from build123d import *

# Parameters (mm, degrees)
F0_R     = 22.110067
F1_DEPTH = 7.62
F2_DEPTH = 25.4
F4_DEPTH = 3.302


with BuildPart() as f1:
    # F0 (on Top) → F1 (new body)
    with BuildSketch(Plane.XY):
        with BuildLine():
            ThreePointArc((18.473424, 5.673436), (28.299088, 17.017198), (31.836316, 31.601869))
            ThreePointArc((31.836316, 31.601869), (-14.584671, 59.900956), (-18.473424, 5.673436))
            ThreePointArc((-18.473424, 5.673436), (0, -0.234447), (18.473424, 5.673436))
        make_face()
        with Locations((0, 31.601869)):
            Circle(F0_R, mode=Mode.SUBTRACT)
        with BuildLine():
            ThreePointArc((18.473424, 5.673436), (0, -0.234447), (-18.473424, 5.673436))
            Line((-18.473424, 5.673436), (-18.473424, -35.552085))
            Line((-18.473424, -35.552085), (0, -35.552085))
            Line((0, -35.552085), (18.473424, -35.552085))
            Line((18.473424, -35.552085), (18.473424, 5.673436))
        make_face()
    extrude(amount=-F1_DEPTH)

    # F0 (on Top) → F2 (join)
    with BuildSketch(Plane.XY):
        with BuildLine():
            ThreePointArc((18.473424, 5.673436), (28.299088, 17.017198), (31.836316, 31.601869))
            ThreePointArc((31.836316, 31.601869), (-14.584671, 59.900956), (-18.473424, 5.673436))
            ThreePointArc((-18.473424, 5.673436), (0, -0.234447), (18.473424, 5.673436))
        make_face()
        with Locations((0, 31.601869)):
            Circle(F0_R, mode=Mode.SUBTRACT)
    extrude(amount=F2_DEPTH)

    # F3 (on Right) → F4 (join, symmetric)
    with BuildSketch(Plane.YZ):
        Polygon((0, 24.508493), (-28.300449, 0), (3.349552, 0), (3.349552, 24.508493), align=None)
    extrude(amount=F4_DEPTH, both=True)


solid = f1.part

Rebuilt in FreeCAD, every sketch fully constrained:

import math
import FreeCAD as App
import Part
import Sketcher
Q = App.Units.Quantity

doc = App.newDocument("Part")
body = doc.addObject("PartDesign::Body", "Body")

# Sketch on XY plane
sketch1 = body.newObject("Sketcher::SketchObject", "Sketch")
sketch1.AttachmentSupport = (doc.getObject("XY_Plane"), [""])
sketch1.MapMode = "FlatFace"
sketch1.addGeometry([
    Part.ArcOfCircle(Part.Circle(App.Vector(0, 32, 0), App.Vector(0, 0, 1), 32), math.radians(-55), math.radians(0)),  # 0
    Part.ArcOfCircle(Part.Circle(App.Vector(0, 32, 0), App.Vector(0, 0, 1), 32), math.radians(0), math.radians(235)),  # 1
    Part.LineSegment(App.Vector(-18, 6, 0), App.Vector(-18, -36, 0)),  # 2
    Part.LineSegment(App.Vector(-18, -36, 0), App.Vector(18, -36, 0)),  # 3
    Part.LineSegment(App.Vector(18, -36, 0), App.Vector(18, 6, 0)),  # 4
    Part.Circle(App.Vector(0, 32, 0), App.Vector(0, 0, 1), 22),  # 5
], False)
sketch1.addConstraint([
    Sketcher.Constraint("Tangent", 0, 2, 1, 1),
    Sketcher.Constraint("Coincident", 1, 2, 2, 1),
    Sketcher.Constraint("Coincident", 2, 2, 3, 1),
    Sketcher.Constraint("Coincident", 3, 2, 4, 1),
    Sketcher.Constraint("Coincident", 4, 2, 0, 1),
    Sketcher.Constraint("Vertical", 2),
    Sketcher.Constraint("Horizontal", 3),
    Sketcher.Constraint("Vertical", 4),
    Sketcher.Constraint("Coincident", 5, 3, 0, 3),
    Sketcher.Constraint("Symmetric", 1, 2, 4, 2, -2),
    Sketcher.Constraint("PointOnObject", 0, 3, -2),
    Sketcher.Constraint("Horizontal", 5, 3, 0, 2),
    Sketcher.Constraint("Diameter", 5, Q("44.220134 mm")),
    Sketcher.Constraint("DistanceX", 1, 2, -1, 1, Q("0.7273002 in")),
    Sketcher.Constraint("Radius", 0, Q("31.836318 mm")),
    Sketcher.Constraint("DistanceY", 2, 2, 2, 1, Q("41.225521 mm")),
    Sketcher.Constraint("DistanceY", -1, 1, 0, 3, Q("31.60187 mm")),
])
pad1 = body.newObject("PartDesign::Pad", "Pad")
pad1.Profile = sketch1
pad1.Length = Q("0.3 in")
pad1.Reversed = True

# Sketch on XY plane
sketch2 = body.newObject("Sketcher::SketchObject", "Sketch001")
sketch2.AttachmentSupport = (doc.getObject("XY_Plane"), [""])
sketch2.MapMode = "FlatFace"
sketch2.addGeometry([
    Part.ArcOfCircle(Part.Circle(App.Vector(0, 32, 0), App.Vector(0, 0, 1), 32), math.radians(-55), math.radians(0)),
    Part.ArcOfCircle(Part.Circle(App.Vector(0, 32, 0), App.Vector(0, 0, 1), 32), math.radians(0), math.radians(235)),
    Part.ArcOfCircle(Part.Circle(App.Vector(0, 32, 0), App.Vector(0, 0, 1), 32), math.radians(-125), math.radians(-55)),
    Part.Circle(App.Vector(0, 32, 0), App.Vector(0, 0, 1), 22),
], False)
sketch2.addConstraint([
    Sketcher.Constraint("Tangent", 0, 2, 1, 1),
    Sketcher.Constraint("Tangent", 1, 2, 2, 1),
    Sketcher.Constraint("Tangent", 2, 2, 0, 1),
    Sketcher.Constraint("Coincident", 3, 3, 0, 3),
    Sketcher.Constraint("Symmetric", 1, 2, 2, 2, -2),
    Sketcher.Constraint("Horizontal", 3, 3, 0, 2),
    Sketcher.Constraint("Diameter", 3, Q("44.220134 mm")),
    Sketcher.Constraint("DistanceX", 1, 2, -1, 1, Q("0.7273002 in")),
    Sketcher.Constraint("Radius", 0, Q("31.836318 mm")),
    Sketcher.Constraint("DistanceY", -1, 1, 0, 3, Q("31.60187 mm")),
])
pad2 = body.newObject("PartDesign::Pad", "Pad001")
pad2.Profile = sketch2
pad2.Length = Q("1 in")

# Sketch on YZ plane
sketch3 = body.newObject("Sketcher::SketchObject", "Sketch002")
sketch3.AttachmentSupport = (doc.getObject("YZ_Plane"), [""])
sketch3.MapMode = "FlatFace"
sketch3.addGeometry([
    Part.LineSegment(App.Vector(0, 24.5, 0), App.Vector(-28.3, 0, 0)),
    Part.LineSegment(App.Vector(-28.3, 0, 0), App.Vector(3.3, 0, 0)),
    Part.LineSegment(App.Vector(3.3, 0, 0), App.Vector(3.3, 24.5, 0)),
    Part.LineSegment(App.Vector(3.3, 24.5, 0), App.Vector(0, 24.5, 0)),
], False)
sketch3.addConstraint([
    Sketcher.Constraint("Coincident", 0, 2, 1, 1),
    Sketcher.Constraint("Coincident", 1, 2, 2, 1),
    Sketcher.Constraint("Coincident", 2, 2, 3, 1),
    Sketcher.Constraint("Coincident", 3, 2, 0, 1),
    Sketcher.Constraint("Horizontal", 1),
    Sketcher.Constraint("Vertical", 2),
    Sketcher.Constraint("Horizontal", 3),
    Sketcher.Constraint("PointOnObject", 0, 2, -1),
    Sketcher.Constraint("PointOnObject", 3, 2, -2),
    Sketcher.Constraint("DistanceX", 1, 1, 1, 2, Q("31.650001 mm")),
    Sketcher.Constraint("DistanceX", 3, 2, 3, 1, Q("3.349552 mm")),
    Sketcher.Constraint("DistanceY", 2, 1, 2, 2, Q("24.508493 mm")),
])
pad3 = body.newObject("PartDesign::Pad", "Pad002")
pad3.Profile = sketch3
pad3.Length = Q("0.26 in")
pad3.Midplane = True

doc.recompute()
